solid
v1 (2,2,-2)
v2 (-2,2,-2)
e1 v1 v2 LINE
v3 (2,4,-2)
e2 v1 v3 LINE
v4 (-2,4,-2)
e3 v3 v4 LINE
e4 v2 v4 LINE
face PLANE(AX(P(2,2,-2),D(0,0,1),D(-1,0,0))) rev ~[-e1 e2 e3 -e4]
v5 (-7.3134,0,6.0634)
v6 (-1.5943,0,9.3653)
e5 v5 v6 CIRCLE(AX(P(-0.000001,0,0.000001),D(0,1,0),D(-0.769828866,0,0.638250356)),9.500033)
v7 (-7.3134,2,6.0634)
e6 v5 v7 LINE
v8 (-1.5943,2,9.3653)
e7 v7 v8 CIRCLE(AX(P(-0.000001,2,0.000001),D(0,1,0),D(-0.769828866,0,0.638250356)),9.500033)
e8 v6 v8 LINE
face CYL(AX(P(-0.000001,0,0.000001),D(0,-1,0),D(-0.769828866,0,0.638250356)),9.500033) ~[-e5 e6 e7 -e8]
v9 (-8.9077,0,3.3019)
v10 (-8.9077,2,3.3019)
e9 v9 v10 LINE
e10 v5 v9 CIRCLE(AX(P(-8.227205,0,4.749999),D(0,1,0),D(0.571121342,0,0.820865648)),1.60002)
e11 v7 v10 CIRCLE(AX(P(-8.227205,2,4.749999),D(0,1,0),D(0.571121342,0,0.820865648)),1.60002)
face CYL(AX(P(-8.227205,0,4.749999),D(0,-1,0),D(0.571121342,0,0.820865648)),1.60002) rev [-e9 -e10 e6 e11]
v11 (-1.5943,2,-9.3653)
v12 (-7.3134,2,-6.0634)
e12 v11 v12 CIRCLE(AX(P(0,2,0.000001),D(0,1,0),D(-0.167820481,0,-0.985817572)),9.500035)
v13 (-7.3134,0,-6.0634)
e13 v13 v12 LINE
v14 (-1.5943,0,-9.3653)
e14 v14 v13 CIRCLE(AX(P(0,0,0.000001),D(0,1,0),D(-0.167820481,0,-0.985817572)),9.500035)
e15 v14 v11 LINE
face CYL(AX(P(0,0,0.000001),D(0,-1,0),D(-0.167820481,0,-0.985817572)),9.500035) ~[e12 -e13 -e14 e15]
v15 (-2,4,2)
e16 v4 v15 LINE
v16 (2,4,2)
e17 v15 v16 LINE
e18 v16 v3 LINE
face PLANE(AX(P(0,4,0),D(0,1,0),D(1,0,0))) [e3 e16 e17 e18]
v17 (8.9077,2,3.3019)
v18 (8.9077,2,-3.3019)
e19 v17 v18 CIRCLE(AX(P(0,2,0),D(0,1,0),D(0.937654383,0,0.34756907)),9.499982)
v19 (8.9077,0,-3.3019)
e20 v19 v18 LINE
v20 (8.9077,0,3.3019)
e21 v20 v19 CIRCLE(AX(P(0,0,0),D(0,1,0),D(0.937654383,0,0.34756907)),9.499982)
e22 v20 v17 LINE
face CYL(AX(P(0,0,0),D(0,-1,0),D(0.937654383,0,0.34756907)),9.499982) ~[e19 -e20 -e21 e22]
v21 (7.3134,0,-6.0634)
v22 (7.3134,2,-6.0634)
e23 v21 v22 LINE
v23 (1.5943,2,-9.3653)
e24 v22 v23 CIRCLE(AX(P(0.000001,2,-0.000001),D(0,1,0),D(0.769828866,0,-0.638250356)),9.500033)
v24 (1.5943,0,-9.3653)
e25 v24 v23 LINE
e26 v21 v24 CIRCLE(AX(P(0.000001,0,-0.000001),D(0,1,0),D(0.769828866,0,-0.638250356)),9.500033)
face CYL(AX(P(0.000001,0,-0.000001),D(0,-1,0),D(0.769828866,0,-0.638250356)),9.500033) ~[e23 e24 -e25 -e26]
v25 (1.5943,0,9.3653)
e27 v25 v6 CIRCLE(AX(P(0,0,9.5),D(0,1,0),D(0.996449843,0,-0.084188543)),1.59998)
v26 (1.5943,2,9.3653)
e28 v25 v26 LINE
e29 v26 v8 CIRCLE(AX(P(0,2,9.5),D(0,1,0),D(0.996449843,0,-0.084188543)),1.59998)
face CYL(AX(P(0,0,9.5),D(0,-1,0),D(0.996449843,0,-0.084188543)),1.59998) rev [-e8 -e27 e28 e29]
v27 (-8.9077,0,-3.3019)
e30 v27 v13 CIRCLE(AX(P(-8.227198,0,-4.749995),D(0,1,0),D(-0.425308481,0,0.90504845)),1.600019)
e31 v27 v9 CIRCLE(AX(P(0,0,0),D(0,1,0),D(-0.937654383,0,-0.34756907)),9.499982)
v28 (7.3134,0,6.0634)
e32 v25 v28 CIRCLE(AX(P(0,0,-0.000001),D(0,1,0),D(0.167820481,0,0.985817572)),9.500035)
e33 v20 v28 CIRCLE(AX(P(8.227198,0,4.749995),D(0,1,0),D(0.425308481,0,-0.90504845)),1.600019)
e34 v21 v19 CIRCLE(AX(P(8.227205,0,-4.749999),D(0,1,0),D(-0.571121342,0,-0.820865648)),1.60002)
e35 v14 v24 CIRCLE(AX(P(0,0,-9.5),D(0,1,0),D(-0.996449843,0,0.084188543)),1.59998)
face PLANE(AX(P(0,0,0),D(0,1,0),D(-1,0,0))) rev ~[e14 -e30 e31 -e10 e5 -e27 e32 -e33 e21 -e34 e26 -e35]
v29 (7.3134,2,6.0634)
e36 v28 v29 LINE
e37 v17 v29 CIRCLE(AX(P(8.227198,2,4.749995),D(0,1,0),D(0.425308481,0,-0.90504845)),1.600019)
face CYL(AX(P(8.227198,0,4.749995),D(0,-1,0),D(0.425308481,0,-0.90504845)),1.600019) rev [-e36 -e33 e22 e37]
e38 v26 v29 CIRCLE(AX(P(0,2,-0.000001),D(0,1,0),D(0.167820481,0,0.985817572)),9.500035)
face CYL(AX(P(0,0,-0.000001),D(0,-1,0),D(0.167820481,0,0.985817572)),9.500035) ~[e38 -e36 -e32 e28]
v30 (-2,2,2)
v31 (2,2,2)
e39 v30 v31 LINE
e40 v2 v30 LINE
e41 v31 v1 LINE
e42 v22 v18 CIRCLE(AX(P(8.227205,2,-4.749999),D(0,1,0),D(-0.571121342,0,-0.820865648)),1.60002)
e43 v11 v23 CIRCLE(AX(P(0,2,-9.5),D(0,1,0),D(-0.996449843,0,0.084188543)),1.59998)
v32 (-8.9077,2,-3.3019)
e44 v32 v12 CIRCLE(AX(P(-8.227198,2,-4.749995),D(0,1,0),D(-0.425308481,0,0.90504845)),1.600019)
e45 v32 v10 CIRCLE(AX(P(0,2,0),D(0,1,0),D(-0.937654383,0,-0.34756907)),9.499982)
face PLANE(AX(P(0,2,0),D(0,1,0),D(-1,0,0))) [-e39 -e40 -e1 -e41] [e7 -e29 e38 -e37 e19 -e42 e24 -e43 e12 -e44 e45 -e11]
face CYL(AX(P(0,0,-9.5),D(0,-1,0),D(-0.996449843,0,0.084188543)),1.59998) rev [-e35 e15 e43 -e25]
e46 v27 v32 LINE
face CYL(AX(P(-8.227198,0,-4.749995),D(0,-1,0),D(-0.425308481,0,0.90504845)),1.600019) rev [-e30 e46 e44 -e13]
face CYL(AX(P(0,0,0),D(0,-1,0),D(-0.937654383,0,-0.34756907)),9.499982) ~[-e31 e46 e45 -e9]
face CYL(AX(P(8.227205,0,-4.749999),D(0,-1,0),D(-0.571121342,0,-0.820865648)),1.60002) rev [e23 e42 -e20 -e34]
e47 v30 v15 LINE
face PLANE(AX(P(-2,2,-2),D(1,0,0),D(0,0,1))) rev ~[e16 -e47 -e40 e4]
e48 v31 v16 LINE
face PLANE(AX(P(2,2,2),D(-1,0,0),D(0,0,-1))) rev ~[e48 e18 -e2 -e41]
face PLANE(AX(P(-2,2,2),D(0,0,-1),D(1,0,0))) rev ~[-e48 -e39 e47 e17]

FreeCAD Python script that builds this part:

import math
import FreeCAD as App
import Part
import Sketcher

V = App.Vector


def add_polygon(sketch, points):
    """Adds a closed chain of lines whose ends are joined by coincident constraints."""
    first, n = sketch.GeometryCount, len(points)
    for a, b in zip(points, points[1:] + points[:1]):
        sketch.addGeometry(Part.LineSegment(App.Vector(*a, 0), App.Vector(*b, 0)), False)
    for i in range(n):
        sketch.addConstraint(Sketcher.Constraint("Coincident", first + i, 2, first + (i + 1) % n, 1))

doc = App.newDocument("Part")
params = doc.addObject("Spreadsheet::Sheet", "Params")
for row, (alias, value) in enumerate([
    ("sketch1_radius", "1.6 mm"),
    ("sketch1_radius2", "9.5 mm"),
    ("pad1_length", "2 mm"),
    ("sketch2_width", "4 mm"),
    ("pad2_length", "2 mm"),
], start=1):
    params.set(f"A{row}", alias)
    params.set(f"B{row}", "=" + value)
    params.setAlias(f"B{row}", alias)

body = doc.addObject("PartDesign::Body", "Body")

# Sketch on XZ plane
sketch1 = body.newObject("Sketcher::SketchObject", "Sketch")
sketch1.AttachmentSupport = (doc.getObject("XZ_Plane"), [""])
sketch1.MapMode = "FlatFace"
sketch1.addGeometry(Part.ArcOfCircle(Part.Circle(V(0, -9.5, 0), V(0, 0, 1), 1.6), math.radians(5), math.radians(175)), False)
sketch1.addGeometry(Part.ArcOfCircle(Part.Circle(V(0, 0, 0), V(0, 0, 1), 9.5), math.radians(-140), math.radians(-100)), False)
sketch1.addGeometry(Part.ArcOfCircle(Part.Circle(V(-8.2, -4.8, 0), V(0, 0, 1), 1.6), math.radians(-55), math.radians(115)), False)
sketch1.addGeometry(Part.ArcOfCircle(Part.Circle(V(0, 0, 0), V(0, 0, 1), 9.5), math.radians(160), math.radians(200)), False)
sketch1.addGeometry(Part.ArcOfCircle(Part.Circle(V(-8.2, 4.8, 0), V(0, 0, 1), 1.6), math.radians(-115), math.radians(55)), False)
sketch1.addGeometry(Part.ArcOfCircle(Part.Circle(V(0, 0, 0), V(0, 0, 1), 9.5), math.radians(100), math.radians(140)), False)
sketch1.addGeometry(Part.ArcOfCircle(Part.Circle(V(0, 9.5, 0), V(0, 0, 1), 1.6), math.radians(-175), math.radians(-5)), False)
sketch1.addGeometry(Part.ArcOfCircle(Part.Circle(V(0, 0, 0), V(0, 0, 1), 9.5), math.radians(40), math.radians(80)), False)
sketch1.addGeometry(Part.ArcOfCircle(Part.Circle(V(8.2, 4.8, 0), V(0, 0, 1), 1.6), math.radians(125), math.radians(295)), False)
sketch1.addGeometry(Part.ArcOfCircle(Part.Circle(V(0, 0, 0), V(0, 0, 1), 9.5), math.radians(-20), math.radians(20)), False)
sketch1.addGeometry(Part.ArcOfCircle(Part.Circle(V(8.2, -4.8, 0), V(0, 0, 1), 1.6), math.radians(65), math.radians(235)), False)
sketch1.addGeometry(Part.ArcOfCircle(Part.Circle(V(0, 0, 0), V(0, 0, 1), 9.5), math.radians(-80), math.radians(-40)), False)
sketch1.addConstraint(Sketcher.Constraint("Coincident", 0, 2, 1, 2))
sketch1.addConstraint(Sketcher.Constraint("Coincident", 1, 1, 2, 1))
sketch1.addConstraint(Sketcher.Constraint("Coincident", 2, 2, 3, 2))
sketch1.addConstraint(Sketcher.Constraint("Coincident", 3, 1, 4, 1))
sketch1.addConstraint(Sketcher.Constraint("Coincident", 4, 2, 5, 2))
sketch1.addConstraint(Sketcher.Constraint("Coincident", 5, 1, 6, 1))
sketch1.addConstraint(Sketcher.Constraint("Coincident", 6, 2, 7, 2))
sketch1.addConstraint(Sketcher.Constraint("Coincident", 7, 1, 8, 1))
sketch1.addConstraint(Sketcher.Constraint("Coincident", 8, 2, 9, 2))
sketch1.addConstraint(Sketcher.Constraint("Coincident", 9, 1, 10, 1))
sketch1.addConstraint(Sketcher.Constraint("Coincident", 10, 2, 11, 2))
sketch1.addConstraint(Sketcher.Constraint("Coincident", 11, 1, 0, 1))
sketch1.addConstraint(Sketcher.Constraint("Coincident", 1, 3, -1, 1))
sketch1.addConstraint(Sketcher.Constraint("Coincident", 3, 3, -1, 1))
sketch1.addConstraint(Sketcher.Constraint("Coincident", 5, 3, -1, 1))
sketch1.addConstraint(Sketcher.Constraint("Coincident", 7, 3, -1, 1))
sketch1.addConstraint(Sketcher.Constraint("Coincident", 9, 3, -1, 1))
sketch1.addConstraint(Sketcher.Constraint("Coincident", 11, 3, -1, 1))
sketch1.addConstraint(Sketcher.Constraint("Equal", 0, 2))
sketch1.addConstraint(Sketcher.Constraint("Equal", 1, 3))
sketch1.addConstraint(Sketcher.Constraint("Equal", 2, 4))
sketch1.addConstraint(Sketcher.Constraint("Equal", 3, 5))
sketch1.addConstraint(Sketcher.Constraint("Equal", 4, 6))
sketch1.addConstraint(Sketcher.Constraint("Equal", 5, 7))
sketch1.addConstraint(Sketcher.Constraint("Equal", 6, 8))
sketch1.addConstraint(Sketcher.Constraint("Equal", 7, 9))
sketch1.addConstraint(Sketcher.Constraint("Equal", 8, 10))
sketch1.addConstraint(Sketcher.Constraint("Equal", 9, 11))
sketch1.addConstraint(Sketcher.Constraint("Symmetric", 0, 3, 6, 3, -1, 1))
sketch1.addConstraint(Sketcher.Constraint("Symmetric", 2, 3, 8, 3, -1, 1))
sketch1.addConstraint(Sketcher.Constraint("Symmetric", 4, 3, 10, 3, -1, 1))
sketch1.addConstraint(Sketcher.Constraint("Symmetric", 4, 3, 8, 3, -2))
sketch1.addConstraint(Sketcher.Constraint("PointOnObject", 0, 3, -2))
sketch1.addConstraint(Sketcher.Constraint("Radius", 0, 1.6))
sketch1.addConstraint(Sketcher.Constraint("Radius", 1, 9.5))
sketch1.addConstraint(Sketcher.Constraint("DistanceY", 0, 3, -1, 1, 9.5))
sketch1.addConstraint(Sketcher.Constraint("DistanceY", 2, 3, 4, 3, 9.5))
sketch1.addConstraint(Sketcher.Constraint("DistanceY", 2, 2, -1, 1, 3.302))
sketch1.setExpression("Constraints[33]", "Params.sketch1_radius")
sketch1.setExpression("Constraints[34]", "Params.sketch1_radius2")
pad1 = body.newObject("PartDesign::Pad", "Pad")
pad1.Profile = sketch1
pad1.setExpression("Length", "Params.pad1_length")
pad1.Reversed = True

# Sketch on XZ plane
sketch2 = body.newObject("Sketcher::SketchObject", "Sketch001")
sketch2.AttachmentSupport = (doc.getObject("XZ_Plane"), [""])
sketch2.MapMode = "FlatFace"
sketch2.AttachmentOffset = App.Placement(V(0, 0, -2), App.Rotation())
add_polygon(sketch2, [(2, 2), (2, -2), (-2, -2), (-2, 2)])  # lines 0-3
sketch2.addConstraint(Sketcher.Constraint("Vertical", 0))
sketch2.addConstraint(Sketcher.Constraint("Horizontal", 1))
sketch2.addConstraint(Sketcher.Constraint("Vertical", 2))
sketch2.addConstraint(Sketcher.Constraint("Horizontal", 3))
sketch2.addConstraint(Sketcher.Constraint("Symmetric", 0, 2, 2, 2, -1, 1))
sketch2.addConstraint(Sketcher.Constraint("Equal", 3, 0))
sketch2.addConstraint(Sketcher.Constraint("DistanceX", 1, 2, 1, 1, 4.0))
sketch2.setExpression("Constraints[10]", "Params.sketch2_width")
pad2 = body.newObject("PartDesign::Pad", "Pad001")
pad2.Profile = sketch2
pad2.setExpression("Length", "Params.pad2_length")
pad2.Reversed = True

doc.recompute()
